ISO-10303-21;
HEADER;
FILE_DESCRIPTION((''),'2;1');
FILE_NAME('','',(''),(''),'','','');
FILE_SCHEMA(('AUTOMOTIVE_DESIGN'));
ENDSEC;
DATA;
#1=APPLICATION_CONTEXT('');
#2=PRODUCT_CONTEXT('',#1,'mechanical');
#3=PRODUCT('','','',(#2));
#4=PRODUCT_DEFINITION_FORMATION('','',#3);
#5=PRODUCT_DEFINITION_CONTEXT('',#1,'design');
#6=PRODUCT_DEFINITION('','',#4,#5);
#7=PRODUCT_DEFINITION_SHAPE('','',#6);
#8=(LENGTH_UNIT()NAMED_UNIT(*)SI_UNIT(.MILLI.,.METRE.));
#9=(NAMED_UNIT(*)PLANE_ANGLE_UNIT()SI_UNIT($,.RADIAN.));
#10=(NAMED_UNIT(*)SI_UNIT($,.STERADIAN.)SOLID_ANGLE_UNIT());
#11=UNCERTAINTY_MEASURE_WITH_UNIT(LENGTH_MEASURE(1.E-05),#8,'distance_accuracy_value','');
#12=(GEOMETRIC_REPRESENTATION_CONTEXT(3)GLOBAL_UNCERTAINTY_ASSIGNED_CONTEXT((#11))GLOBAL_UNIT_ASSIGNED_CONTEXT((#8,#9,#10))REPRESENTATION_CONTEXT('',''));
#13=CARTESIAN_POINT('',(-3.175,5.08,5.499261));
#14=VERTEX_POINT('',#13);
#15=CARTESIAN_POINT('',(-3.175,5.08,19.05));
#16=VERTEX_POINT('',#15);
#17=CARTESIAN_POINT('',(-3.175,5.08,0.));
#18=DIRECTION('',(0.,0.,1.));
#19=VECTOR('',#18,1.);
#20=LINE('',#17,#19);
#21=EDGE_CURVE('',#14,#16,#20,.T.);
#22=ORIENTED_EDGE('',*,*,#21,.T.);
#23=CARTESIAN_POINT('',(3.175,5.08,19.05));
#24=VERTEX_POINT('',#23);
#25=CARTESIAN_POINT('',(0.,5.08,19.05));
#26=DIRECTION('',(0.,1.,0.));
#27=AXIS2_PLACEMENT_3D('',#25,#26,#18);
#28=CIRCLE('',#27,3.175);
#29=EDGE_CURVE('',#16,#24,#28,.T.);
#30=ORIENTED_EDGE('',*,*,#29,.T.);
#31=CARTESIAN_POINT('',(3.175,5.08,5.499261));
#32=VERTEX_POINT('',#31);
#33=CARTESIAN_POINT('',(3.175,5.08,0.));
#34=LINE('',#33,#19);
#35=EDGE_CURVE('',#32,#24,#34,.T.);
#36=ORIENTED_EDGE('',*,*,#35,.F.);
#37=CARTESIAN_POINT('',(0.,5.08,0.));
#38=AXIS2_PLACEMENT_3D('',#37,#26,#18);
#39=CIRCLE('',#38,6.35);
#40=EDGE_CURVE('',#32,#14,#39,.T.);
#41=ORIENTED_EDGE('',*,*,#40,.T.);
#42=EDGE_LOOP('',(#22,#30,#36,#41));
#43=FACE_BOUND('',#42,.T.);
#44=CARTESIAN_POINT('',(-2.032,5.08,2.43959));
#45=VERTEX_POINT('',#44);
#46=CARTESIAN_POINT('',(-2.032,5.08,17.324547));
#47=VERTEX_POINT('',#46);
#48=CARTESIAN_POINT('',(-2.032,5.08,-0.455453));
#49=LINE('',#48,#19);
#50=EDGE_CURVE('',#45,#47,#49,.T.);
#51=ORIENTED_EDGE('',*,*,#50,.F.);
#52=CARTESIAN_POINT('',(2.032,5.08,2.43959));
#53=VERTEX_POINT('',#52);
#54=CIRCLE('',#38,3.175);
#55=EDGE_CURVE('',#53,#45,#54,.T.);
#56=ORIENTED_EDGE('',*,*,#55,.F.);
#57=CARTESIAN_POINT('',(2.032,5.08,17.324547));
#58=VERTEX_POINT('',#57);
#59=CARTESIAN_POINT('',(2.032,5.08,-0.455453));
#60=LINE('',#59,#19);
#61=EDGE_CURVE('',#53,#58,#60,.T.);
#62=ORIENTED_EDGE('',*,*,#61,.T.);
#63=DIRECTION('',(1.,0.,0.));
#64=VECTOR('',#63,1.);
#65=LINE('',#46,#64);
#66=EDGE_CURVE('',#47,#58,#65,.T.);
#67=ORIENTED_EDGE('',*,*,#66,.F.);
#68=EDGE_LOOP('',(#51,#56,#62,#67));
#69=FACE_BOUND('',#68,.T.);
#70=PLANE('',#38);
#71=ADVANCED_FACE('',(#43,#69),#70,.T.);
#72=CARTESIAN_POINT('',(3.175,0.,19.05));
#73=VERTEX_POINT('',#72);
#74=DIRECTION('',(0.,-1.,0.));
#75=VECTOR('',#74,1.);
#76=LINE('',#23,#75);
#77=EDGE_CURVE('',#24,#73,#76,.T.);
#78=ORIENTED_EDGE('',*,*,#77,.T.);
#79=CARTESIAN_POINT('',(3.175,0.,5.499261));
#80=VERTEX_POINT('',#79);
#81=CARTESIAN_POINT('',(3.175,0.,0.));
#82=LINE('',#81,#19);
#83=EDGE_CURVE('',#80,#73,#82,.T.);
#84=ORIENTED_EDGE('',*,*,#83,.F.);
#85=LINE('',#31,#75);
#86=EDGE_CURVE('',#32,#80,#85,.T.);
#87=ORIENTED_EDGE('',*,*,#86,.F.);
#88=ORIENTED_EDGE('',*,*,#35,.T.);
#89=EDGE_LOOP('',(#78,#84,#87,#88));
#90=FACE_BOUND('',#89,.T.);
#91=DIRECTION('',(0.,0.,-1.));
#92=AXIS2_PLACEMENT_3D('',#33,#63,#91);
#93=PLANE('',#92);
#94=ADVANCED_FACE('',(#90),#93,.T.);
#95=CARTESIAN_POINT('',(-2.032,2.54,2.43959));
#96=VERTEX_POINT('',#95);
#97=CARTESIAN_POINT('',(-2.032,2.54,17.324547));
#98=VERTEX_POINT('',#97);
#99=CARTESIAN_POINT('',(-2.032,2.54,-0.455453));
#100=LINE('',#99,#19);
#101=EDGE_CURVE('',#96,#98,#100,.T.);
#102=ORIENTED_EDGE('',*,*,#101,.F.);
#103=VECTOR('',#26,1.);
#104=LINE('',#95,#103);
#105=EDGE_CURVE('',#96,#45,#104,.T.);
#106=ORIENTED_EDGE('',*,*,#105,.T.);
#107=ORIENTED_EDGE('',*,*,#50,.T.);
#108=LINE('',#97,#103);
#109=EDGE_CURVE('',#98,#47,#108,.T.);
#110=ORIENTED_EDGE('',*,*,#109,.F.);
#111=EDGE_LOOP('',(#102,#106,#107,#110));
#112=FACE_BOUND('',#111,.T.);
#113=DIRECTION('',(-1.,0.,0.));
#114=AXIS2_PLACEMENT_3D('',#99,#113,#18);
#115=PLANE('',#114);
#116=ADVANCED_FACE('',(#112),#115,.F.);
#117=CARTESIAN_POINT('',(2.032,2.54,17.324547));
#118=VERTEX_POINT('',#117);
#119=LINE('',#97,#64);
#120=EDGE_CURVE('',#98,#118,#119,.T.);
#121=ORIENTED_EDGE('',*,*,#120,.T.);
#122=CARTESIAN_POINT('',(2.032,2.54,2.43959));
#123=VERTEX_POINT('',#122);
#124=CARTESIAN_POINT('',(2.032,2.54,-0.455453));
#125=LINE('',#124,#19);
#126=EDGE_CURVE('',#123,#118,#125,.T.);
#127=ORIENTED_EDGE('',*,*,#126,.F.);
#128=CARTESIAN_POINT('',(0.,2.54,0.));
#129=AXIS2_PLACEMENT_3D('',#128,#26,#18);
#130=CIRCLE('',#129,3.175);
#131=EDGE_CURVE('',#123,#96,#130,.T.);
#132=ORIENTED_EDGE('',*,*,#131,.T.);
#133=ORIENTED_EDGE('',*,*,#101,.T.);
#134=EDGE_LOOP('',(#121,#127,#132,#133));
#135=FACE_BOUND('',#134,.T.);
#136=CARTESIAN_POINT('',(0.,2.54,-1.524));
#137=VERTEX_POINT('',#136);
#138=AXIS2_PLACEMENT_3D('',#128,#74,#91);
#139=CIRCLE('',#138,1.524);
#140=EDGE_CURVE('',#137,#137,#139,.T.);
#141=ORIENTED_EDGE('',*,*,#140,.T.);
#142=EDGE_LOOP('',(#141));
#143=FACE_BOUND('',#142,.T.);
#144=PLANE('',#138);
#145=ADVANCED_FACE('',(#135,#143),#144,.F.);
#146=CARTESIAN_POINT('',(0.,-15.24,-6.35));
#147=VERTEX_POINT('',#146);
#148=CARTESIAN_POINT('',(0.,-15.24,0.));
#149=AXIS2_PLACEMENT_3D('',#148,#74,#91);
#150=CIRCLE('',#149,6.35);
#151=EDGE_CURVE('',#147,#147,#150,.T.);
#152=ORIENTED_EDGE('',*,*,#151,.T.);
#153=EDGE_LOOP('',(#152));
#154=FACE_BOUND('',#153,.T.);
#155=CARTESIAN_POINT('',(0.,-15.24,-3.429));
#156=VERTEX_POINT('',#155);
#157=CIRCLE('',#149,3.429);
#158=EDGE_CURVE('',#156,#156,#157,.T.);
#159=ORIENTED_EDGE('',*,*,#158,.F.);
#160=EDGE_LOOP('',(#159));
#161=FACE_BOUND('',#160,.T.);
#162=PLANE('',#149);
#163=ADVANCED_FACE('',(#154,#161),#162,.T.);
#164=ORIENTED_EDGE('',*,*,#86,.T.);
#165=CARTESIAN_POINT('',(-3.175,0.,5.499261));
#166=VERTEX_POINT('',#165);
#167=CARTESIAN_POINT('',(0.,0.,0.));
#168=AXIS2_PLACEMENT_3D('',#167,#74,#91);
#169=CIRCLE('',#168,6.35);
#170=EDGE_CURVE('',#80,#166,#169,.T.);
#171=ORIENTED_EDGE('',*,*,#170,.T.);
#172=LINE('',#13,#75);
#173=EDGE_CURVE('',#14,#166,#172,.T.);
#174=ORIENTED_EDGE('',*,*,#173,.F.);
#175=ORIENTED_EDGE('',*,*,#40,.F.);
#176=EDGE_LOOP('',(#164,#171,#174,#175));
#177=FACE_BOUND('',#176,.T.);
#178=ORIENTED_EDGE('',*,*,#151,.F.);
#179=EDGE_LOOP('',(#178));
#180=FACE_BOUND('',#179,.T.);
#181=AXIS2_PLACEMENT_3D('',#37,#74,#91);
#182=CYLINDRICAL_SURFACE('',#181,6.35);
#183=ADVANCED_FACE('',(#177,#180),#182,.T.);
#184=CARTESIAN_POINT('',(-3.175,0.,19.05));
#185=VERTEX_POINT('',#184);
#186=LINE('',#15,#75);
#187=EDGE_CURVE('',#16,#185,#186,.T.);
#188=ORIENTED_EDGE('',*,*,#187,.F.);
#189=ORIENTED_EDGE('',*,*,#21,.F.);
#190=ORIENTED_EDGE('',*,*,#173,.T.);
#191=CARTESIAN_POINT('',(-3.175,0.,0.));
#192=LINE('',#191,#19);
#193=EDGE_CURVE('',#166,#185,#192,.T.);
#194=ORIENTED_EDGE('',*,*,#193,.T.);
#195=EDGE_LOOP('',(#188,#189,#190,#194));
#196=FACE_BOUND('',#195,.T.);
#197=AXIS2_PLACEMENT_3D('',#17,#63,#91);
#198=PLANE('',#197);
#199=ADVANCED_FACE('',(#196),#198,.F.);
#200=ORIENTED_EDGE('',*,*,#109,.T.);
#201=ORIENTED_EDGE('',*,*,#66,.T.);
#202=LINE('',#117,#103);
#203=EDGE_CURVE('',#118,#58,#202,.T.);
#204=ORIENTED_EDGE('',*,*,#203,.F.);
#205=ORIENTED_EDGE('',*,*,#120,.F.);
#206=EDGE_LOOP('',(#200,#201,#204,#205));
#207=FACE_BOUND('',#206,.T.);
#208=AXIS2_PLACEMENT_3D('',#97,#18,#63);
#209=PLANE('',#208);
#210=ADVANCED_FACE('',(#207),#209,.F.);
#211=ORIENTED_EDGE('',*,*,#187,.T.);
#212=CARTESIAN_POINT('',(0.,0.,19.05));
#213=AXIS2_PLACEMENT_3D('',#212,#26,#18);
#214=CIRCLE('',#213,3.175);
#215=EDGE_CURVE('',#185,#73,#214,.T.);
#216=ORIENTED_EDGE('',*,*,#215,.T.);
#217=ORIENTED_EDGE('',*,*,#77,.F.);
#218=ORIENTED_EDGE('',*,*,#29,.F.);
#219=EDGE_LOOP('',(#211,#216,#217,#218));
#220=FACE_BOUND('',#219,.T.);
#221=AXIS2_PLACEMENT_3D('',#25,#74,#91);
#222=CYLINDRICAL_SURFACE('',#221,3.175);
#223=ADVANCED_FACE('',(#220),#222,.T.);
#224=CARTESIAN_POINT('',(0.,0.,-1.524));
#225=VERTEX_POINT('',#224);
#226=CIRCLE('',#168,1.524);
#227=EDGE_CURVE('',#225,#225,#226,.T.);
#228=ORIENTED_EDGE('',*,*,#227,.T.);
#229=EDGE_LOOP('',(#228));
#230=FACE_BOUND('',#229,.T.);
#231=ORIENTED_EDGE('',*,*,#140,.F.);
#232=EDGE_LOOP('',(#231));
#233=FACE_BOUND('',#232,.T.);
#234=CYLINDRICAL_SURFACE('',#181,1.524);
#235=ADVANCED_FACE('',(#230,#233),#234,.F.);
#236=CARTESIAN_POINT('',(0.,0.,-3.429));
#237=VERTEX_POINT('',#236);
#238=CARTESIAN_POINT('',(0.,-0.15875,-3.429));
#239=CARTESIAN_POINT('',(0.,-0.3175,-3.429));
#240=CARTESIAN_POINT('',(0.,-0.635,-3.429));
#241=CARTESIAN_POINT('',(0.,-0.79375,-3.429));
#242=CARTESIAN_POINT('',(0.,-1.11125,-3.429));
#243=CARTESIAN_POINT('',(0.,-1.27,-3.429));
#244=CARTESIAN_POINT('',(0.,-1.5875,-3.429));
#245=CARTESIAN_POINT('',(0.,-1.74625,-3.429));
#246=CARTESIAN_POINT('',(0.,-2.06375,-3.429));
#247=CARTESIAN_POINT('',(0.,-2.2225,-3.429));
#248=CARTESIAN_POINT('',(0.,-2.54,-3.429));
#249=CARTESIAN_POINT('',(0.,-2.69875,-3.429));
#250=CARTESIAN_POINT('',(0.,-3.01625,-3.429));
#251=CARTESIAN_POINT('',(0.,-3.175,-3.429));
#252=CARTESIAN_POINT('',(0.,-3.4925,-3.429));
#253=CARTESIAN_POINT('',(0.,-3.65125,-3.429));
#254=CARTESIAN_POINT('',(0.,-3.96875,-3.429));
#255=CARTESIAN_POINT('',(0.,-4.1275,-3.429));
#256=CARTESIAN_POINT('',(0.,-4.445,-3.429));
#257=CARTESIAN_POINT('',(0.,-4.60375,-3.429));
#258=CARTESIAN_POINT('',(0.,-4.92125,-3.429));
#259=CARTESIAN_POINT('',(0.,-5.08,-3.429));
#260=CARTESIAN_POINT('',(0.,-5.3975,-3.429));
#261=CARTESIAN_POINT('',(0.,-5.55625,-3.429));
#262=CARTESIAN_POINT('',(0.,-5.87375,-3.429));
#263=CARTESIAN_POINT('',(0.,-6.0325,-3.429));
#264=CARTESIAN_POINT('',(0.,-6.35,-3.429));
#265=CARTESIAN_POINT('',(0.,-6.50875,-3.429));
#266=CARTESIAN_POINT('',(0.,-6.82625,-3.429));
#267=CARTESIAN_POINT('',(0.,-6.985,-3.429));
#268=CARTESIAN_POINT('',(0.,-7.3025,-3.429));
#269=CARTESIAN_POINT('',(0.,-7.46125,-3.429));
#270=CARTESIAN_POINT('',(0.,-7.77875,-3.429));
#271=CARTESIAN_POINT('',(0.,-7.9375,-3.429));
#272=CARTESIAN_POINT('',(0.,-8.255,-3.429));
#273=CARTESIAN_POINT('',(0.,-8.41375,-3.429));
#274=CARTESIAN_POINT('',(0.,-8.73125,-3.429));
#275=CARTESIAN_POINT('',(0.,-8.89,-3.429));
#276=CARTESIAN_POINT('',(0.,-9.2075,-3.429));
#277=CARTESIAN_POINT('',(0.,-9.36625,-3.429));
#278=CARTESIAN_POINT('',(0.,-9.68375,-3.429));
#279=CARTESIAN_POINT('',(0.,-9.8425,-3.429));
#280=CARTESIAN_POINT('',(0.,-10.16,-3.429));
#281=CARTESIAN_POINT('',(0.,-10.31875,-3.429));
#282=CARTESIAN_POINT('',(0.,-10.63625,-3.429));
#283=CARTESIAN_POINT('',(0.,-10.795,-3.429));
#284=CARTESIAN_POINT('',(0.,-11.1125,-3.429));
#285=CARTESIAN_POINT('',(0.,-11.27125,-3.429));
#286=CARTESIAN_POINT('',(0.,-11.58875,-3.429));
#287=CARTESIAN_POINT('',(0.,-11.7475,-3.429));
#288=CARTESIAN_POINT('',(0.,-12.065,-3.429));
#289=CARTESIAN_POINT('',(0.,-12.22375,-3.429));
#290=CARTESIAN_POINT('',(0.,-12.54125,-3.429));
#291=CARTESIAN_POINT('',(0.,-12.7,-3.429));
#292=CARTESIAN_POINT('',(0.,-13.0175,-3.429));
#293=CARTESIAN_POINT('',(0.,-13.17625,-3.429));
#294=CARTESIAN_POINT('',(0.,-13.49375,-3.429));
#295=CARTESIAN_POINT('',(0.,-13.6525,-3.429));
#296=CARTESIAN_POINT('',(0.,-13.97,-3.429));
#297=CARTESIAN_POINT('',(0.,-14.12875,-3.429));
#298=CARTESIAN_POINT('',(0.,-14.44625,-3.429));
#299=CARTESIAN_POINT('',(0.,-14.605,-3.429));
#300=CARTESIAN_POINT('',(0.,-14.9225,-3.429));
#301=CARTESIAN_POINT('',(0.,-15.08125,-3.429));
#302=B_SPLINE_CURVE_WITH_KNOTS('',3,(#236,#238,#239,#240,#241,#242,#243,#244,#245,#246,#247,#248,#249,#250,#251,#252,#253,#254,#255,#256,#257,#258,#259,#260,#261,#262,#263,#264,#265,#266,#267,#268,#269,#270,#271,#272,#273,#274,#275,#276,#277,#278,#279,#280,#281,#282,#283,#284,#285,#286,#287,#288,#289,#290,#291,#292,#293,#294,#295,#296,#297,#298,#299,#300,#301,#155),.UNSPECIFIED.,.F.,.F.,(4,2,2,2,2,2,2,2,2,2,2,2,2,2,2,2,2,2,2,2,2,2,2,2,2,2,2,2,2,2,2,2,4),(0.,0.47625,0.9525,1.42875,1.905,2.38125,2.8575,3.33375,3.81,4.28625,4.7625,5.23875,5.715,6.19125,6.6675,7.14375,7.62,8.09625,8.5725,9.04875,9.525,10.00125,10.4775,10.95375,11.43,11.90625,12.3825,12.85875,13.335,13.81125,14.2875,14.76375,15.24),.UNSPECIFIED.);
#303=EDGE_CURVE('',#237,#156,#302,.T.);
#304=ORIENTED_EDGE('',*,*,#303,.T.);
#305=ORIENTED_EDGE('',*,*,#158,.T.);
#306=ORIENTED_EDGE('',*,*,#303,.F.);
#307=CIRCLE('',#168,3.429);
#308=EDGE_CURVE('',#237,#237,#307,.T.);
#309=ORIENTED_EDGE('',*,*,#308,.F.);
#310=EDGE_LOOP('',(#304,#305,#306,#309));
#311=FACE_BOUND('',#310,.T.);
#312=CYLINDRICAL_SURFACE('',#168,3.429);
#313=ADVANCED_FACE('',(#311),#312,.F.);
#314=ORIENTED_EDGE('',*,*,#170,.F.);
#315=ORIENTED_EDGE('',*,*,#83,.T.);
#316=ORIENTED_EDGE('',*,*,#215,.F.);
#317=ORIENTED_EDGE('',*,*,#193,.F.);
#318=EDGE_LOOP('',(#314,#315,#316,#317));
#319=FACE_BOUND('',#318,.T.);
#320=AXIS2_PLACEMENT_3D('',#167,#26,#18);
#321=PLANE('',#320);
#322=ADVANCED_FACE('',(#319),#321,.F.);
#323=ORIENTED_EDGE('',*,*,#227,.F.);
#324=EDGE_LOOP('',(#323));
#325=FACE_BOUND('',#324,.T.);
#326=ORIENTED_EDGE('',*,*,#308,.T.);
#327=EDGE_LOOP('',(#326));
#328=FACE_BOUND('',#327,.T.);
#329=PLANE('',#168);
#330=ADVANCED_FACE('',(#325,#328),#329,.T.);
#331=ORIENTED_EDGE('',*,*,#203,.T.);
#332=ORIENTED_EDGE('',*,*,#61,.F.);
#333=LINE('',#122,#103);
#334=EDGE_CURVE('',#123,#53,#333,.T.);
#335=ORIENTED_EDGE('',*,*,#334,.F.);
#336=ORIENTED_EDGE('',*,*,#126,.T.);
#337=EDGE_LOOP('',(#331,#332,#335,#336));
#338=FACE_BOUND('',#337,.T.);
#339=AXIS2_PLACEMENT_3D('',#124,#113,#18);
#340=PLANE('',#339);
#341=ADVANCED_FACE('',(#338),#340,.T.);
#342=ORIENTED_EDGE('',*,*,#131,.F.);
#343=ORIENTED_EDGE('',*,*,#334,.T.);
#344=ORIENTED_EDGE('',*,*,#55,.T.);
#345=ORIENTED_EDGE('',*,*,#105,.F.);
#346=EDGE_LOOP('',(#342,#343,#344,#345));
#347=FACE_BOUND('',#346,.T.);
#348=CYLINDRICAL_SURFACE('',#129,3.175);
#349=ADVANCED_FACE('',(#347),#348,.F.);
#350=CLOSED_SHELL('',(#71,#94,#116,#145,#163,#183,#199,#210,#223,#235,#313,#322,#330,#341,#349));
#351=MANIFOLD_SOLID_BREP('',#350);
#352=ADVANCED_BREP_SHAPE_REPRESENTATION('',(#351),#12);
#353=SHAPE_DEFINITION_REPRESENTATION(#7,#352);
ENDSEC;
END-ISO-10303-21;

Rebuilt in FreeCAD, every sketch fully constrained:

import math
import FreeCAD as App
import Part
import Sketcher

V = App.Vector
Q = App.Units.Quantity

doc = App.newDocument("Part")
params = doc.addObject("Spreadsheet::Sheet", "Params")
for row, (alias, value) in enumerate([
    ("sketch1_diameter", "0.12 in"),
    ("sketch1_radius", "0.25 in"),
    ("sketch1_radius2", "0.125 in"),
    ("pad1_length", "0.2 in"),
    ("sketch2_radius", "0.125 in"),
    ("sketch2_width", "0.16 in"),
    ("pocket1_length", "0.1 in"),
    ("sketch3_diameter", "0.5 in"),
    ("pad2_length", "0.6 in"),
    ("sketch4_diameter", "0.27 in"),
    ("pocket2_length", "0.6 in"),
], start=1):
    params.set(f"A{row}", alias)
    params.set(f"B{row}", "=" + value)
    params.setAlias(f"B{row}", alias)

body = doc.addObject("PartDesign::Body", "Body")

sketch1 = body.newObject("Sketcher::SketchObject", "Sketch")
sketch1.AttachmentSupport = (doc.getObject("XZ_Plane"), [""])
sketch1.MapMode = "FlatFace"
sketch1.addGeometry([
    Part.ArcOfCircle(Part.Circle(V(0, 0, 0), V(0, 0, 1), 6.35), math.radians(120), math.radians(420)),
    Part.LineSegment(V(-3.175, 5.499261, 0), V(-3.175, 19.05, 0)),
    Part.ArcOfCircle(Part.Circle(V(0, 19.05, 0), V(0, 0, 1), 3.175), math.radians(0), math.radians(180)),
    Part.LineSegment(V(3.175, 19.05, 0), V(3.175, 5.499261, 0)),
    Part.Circle(V(0, 0, 0), V(0, 0, 1), 1.524),
], False)
sketch1.addConstraint([
    Sketcher.Constraint("Coincident", 0, 1, 1, 1),
    Sketcher.Constraint("Tangent", 1, 2, 2, 2),
    Sketcher.Constraint("Tangent", 2, 1, 3, 1),
    Sketcher.Constraint("Coincident", 3, 2, 0, 2),
    Sketcher.Constraint("Vertical", 1),
    Sketcher.Constraint("Vertical", 3),
    Sketcher.Constraint("Coincident", 0, 3, -1, 1),
    Sketcher.Constraint("Coincident", 4, 3, -1, 1),
    Sketcher.Constraint("PointOnObject", 2, 3, -2),
    Sketcher.Constraint("Diameter", 4, Q("0.12 in")),
    Sketcher.Constraint("Radius", 0, Q("0.25 in")),
    Sketcher.Constraint("Radius", 2, Q("0.125 in")),
    Sketcher.Constraint("DistanceY", -1, 1, 2, 3, Q("0.75 in")),
])
sketch1.setExpression("Constraints[9]", "Params.sketch1_diameter")
sketch1.setExpression("Constraints[10]", "Params.sketch1_radius")
sketch1.setExpression("Constraints[11]", "Params.sketch1_radius2")
pad1 = body.newObject("PartDesign::Pad", "Pad")
pad1.Profile = sketch1
pad1.setExpression("Length", "Params.pad1_length")
pad1.Reversed = True

sketch2 = body.newObject("Sketcher::SketchObject", "Sketch001")
sketch2.AttachmentSupport = (doc.getObject("XZ_Plane"), [""])
sketch2.MapMode = "FlatFace"
sketch2.AttachmentOffset = App.Placement(V(0, 0, -0.2 * 25.4), App.Rotation())
sketch2.addGeometry([
    Part.ArcOfCircle(Part.Circle(V(0, 0, 0), V(0, 0, 1), 3.175), math.radians(129.79182), math.radians(410.20818)),
    Part.LineSegment(V(-2.032, 2.43959, 0), V(-2.032, 17.324547, 0)),
    Part.LineSegment(V(-2.032, 17.324547, 0), V(2.032, 17.324547, 0)),
    Part.LineSegment(V(2.032, 17.324547, 0), V(2.032, 2.43959, 0)),
], False)
sketch2.addConstraint([
    Sketcher.Constraint("Coincident", 0, 1, 1, 1),
    Sketcher.Constraint("Coincident", 1, 2, 2, 1),
    Sketcher.Constraint("Coincident", 2, 2, 3, 1),
    Sketcher.Constraint("Coincident", 3, 2, 0, 2),
    Sketcher.Constraint("Vertical", 1),
    Sketcher.Constraint("Horizontal", 2),
    Sketcher.Constraint("Vertical", 3),
    Sketcher.Constraint("Coincident", 0, 3, -1, 1),
    Sketcher.Constraint("Horizontal", 0, 1, 3, 2),
    Sketcher.Constraint("Radius", 0, Q("0.125 in")),
    Sketcher.Constraint("DistanceX", 2, 1, 2, 2, Q("0.16 in")),
    Sketcher.Constraint("DistanceY", 1, 1, 1, 2, 14.884957),
])
sketch2.setExpression("Constraints[9]", "Params.sketch2_radius")
sketch2.setExpression("Constraints[10]", "Params.sketch2_width")
pocket1 = body.newObject("PartDesign::Pocket", "Pocket")
pocket1.Profile = sketch2
pocket1.setExpression("Length", "Params.pocket1_length")
pocket1.Reversed = True

sketch3 = body.newObject("Sketcher::SketchObject", "Sketch002")
sketch3.AttachmentSupport = (doc.getObject("XZ_Plane"), [""])
sketch3.MapMode = "FlatFace"
sketch3.AttachmentOffset = App.Placement(V(0, 0, 0.6 * 25.4), App.Rotation())
sketch3.addGeometry(Part.Circle(V(0, 0, 0), V(0, 0, 1), 6.35), False)
sketch3.addConstraint([
    Sketcher.Constraint("Coincident", 0, 3, -1, 1),
    Sketcher.Constraint("Diameter", 0, Q("0.5 in")),
])
sketch3.setExpression("Constraints[1]", "Params.sketch3_diameter")
pad2 = body.newObject("PartDesign::Pad", "Pad001")
pad2.Profile = sketch3
pad2.setExpression("Length", "Params.pad2_length")
pad2.Reversed = True

sketch4 = body.newObject("Sketcher::SketchObject", "Sketch003")
sketch4.AttachmentSupport = (doc.getObject("XZ_Plane"), [""])
sketch4.MapMode = "FlatFace"
sketch4.AttachmentOffset = App.Placement(V(0, 0, 0.6 * 25.4), App.Rotation())
sketch4.addGeometry(Part.Circle(V(0, 0, 0), V(0, 0, 1), 3.429), False)
sketch4.addConstraint([
    Sketcher.Constraint("Coincident", 0, 3, -1, 1),
    Sketcher.Constraint("Diameter", 0, Q("0.27 in")),
])
sketch4.setExpression("Constraints[1]", "Params.sketch4_diameter")
pocket2 = body.newObject("PartDesign::Pocket", "Pocket001")
pocket2.Profile = sketch4
pocket2.setExpression("Length", "Params.pocket2_length")

doc.recompute()
